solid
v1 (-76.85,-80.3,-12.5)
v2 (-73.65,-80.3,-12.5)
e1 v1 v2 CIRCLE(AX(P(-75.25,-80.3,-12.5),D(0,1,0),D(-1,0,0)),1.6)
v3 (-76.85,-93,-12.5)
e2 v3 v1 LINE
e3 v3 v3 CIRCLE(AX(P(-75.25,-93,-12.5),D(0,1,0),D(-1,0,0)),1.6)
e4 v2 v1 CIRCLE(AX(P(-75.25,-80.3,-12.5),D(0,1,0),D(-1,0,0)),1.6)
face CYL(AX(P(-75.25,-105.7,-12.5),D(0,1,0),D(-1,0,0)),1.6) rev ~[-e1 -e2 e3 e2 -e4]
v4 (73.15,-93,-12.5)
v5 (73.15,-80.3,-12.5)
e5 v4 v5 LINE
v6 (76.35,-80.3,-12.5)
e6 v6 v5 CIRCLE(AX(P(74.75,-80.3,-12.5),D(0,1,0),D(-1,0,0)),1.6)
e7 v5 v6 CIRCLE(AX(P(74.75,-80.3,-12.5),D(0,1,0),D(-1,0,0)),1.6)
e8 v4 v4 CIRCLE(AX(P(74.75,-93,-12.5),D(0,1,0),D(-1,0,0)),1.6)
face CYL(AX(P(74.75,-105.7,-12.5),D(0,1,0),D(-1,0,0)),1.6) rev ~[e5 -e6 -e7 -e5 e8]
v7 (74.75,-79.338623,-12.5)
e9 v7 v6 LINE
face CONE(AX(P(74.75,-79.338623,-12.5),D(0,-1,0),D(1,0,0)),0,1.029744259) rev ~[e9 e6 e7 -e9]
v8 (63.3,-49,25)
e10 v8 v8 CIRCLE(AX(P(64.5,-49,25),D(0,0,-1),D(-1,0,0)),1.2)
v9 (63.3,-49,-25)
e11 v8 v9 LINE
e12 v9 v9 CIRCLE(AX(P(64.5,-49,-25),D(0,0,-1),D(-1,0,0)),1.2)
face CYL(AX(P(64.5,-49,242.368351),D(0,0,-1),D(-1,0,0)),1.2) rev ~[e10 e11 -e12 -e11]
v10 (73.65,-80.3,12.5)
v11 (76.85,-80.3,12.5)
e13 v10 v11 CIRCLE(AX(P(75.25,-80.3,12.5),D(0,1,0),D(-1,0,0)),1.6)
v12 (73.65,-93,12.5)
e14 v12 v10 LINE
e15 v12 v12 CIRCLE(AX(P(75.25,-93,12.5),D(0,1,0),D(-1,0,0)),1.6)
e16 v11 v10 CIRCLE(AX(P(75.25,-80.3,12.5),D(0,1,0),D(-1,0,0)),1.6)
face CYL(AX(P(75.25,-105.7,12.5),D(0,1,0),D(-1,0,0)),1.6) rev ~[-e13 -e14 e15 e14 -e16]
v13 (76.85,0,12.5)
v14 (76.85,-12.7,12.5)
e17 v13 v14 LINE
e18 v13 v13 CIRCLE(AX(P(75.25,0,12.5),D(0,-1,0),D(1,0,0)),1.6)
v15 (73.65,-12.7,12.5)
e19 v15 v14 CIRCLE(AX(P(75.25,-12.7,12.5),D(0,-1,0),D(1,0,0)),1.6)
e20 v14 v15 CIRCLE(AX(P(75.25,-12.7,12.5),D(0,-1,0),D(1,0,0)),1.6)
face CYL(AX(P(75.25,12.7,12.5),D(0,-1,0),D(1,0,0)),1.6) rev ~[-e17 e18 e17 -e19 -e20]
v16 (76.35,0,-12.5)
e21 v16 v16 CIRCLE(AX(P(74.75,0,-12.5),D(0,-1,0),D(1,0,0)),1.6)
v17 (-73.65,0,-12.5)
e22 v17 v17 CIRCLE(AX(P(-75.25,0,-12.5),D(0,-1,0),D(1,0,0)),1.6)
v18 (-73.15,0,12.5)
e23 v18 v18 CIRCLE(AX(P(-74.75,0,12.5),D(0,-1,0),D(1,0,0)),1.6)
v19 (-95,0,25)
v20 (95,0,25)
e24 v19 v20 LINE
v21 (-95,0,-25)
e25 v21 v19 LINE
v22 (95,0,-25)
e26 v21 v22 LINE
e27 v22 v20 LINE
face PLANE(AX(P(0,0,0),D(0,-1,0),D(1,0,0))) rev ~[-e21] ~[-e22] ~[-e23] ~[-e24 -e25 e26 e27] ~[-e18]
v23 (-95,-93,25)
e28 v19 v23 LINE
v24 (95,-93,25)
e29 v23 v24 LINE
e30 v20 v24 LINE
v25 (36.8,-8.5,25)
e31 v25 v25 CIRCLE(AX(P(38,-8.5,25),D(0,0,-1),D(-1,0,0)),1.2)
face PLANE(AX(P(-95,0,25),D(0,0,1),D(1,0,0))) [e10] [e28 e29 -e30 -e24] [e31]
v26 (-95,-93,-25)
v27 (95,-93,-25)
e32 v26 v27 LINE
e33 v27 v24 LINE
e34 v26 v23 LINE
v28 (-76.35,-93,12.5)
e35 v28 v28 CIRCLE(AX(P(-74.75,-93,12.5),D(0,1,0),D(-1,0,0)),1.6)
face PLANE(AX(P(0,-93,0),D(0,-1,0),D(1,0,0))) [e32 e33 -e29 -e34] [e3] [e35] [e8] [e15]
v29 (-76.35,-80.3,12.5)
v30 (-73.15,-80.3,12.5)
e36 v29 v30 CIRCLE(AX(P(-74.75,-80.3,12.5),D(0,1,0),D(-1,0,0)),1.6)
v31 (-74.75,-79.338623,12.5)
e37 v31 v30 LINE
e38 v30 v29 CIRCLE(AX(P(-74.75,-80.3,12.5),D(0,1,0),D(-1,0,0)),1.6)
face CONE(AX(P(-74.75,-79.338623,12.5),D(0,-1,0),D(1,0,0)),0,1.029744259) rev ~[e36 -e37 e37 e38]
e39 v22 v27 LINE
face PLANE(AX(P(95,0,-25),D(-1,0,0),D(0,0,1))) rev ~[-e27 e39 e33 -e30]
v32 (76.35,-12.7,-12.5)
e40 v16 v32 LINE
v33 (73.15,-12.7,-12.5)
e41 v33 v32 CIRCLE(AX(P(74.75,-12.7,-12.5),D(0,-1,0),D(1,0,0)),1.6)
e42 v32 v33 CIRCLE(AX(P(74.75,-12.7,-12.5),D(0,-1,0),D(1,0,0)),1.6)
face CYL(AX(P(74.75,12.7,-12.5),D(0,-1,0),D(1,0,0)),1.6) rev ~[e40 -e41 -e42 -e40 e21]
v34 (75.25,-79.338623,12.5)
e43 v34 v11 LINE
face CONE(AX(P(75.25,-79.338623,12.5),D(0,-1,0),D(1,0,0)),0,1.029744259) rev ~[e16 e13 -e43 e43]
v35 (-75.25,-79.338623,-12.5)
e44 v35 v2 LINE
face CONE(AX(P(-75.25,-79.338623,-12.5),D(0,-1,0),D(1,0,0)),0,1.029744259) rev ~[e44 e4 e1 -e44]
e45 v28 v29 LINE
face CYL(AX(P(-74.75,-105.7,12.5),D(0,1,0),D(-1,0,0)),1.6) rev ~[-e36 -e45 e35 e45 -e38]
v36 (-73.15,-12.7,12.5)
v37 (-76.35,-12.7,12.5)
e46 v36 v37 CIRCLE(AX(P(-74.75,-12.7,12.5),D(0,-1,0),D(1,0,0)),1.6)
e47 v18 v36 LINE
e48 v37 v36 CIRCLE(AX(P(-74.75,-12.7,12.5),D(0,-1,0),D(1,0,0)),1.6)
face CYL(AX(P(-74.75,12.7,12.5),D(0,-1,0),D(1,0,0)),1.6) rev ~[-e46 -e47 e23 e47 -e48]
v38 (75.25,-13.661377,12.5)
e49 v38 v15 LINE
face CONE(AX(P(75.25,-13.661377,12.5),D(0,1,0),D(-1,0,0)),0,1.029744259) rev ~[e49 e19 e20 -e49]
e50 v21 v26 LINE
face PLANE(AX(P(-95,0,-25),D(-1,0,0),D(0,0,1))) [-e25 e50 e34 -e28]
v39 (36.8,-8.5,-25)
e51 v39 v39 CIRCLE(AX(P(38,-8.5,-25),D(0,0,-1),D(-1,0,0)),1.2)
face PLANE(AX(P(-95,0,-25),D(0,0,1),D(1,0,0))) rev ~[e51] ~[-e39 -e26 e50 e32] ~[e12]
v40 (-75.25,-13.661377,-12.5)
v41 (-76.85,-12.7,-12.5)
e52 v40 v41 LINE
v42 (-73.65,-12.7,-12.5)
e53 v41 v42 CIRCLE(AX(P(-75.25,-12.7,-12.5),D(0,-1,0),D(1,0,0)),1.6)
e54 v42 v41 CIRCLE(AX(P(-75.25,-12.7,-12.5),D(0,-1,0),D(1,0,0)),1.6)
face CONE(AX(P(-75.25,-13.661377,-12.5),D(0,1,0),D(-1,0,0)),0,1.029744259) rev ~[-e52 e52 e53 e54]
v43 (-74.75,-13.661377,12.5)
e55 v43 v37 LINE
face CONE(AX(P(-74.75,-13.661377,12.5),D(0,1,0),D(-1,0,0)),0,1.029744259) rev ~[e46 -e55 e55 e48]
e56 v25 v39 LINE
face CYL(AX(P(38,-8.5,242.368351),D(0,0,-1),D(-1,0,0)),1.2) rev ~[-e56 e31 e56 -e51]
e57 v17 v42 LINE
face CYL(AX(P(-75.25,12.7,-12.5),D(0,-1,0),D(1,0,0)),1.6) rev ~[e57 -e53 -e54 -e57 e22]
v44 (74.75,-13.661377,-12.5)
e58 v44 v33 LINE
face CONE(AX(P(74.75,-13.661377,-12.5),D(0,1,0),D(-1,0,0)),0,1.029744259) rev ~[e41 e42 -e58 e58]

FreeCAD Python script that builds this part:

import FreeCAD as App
import Part
import Sketcher


def add_polygon(sketch, points):
    """Adds a closed chain of lines whose ends are joined by coincident constraints."""
    first, n = sketch.GeometryCount, len(points)
    for a, b in zip(points, points[1:] + points[:1]):
        sketch.addGeometry(Part.LineSegment(App.Vector(*a, 0), App.Vector(*b, 0)), False)
    for i in range(n):
        sketch.addConstraint(Sketcher.Constraint("Coincident", first + i, 2, first + (i + 1) % n, 1))

doc = App.newDocument("Part")
body = doc.addObject("PartDesign::Body", "Body")

# Sketch on XZ plane
sketch1 = body.newObject("Sketcher::SketchObject", "Sketch")
sketch1.AttachmentSupport = (doc.getObject("XZ_Plane"), [""])
sketch1.MapMode = "FlatFace"
add_polygon(sketch1, [(-95, 25), (-95, -25), (95, -25), (95, 25)])  # lines 0-3
sketch1.addConstraint(Sketcher.Constraint("Vertical", 0))
sketch1.addConstraint(Sketcher.Constraint("Horizontal", 1))
sketch1.addConstraint(Sketcher.Constraint("Vertical", 2))
sketch1.addConstraint(Sketcher.Constraint("Horizontal", 3))
sketch1.addConstraint(Sketcher.Constraint("Symmetric", 0, 2, 2, 2, -1, 1))
sketch1.addConstraint(Sketcher.Constraint("DistanceX", 1, 1, 1, 2, 190.0))
sketch1.addConstraint(Sketcher.Constraint("DistanceY", 0, 2, 0, 1, 50.0))
pad1 = body.newObject("PartDesign::Pad", "Pad")
pad1.Profile = sketch1
pad1.Length = 93

# Sketch on XZ plane
sketch2 = body.newObject("Sketcher::SketchObject", "Sketch001")
sketch2.AttachmentSupport = (doc.getObject("XZ_Plane"), [""])
sketch2.MapMode = "FlatFace"
sketch2.AttachmentOffset = App.Placement(App.Vector(0, 0, 93), App.Rotation())
sketch2.addGeometry(Part.Circle(App.Vector(-74.75, 12.5, 0), App.Vector(0, 0, 1), 1.6), False)
sketch2.addGeometry(Part.Circle(App.Vector(75.25, 12.5, 0), App.Vector(0, 0, 1), 1.6), False)
sketch2.addGeometry(Part.Circle(App.Vector(74.75, -12.5, 0), App.Vector(0, 0, 1), 1.6), False)
sketch2.addGeometry(Part.Circle(App.Vector(-75.25, -12.5, 0), App.Vector(0, 0, 1), 1.6), False)
sketch2.addConstraint(Sketcher.Constraint("Equal", 0, 1))
sketch2.addConstraint(Sketcher.Constraint("Equal", 1, 2))
sketch2.addConstraint(Sketcher.Constraint("Equal", 2, 3))
sketch2.addConstraint(Sketcher.Constraint("Symmetric", 0, 3, 2, 3, -1, 1))
sketch2.addConstraint(Sketcher.Constraint("Symmetric", 1, 3, 3, 3, -1, 1))
sketch2.addConstraint(Sketcher.Constraint("Horizontal", 0, 3, 1, 3))
sketch2.addConstraint(Sketcher.Constraint("Diameter", 0, 3.2))
sketch2.addConstraint(Sketcher.Constraint("DistanceX", 0, 3, 1, 3, 150.0))
sketch2.addConstraint(Sketcher.Constraint("DistanceY", 2, 3, 1, 3, 25.0))
sketch2.addConstraint(Sketcher.Constraint("DistanceX", 2, 3, 1, 3, 0.5))
doc.recompute()
hole = body.newObject("PartDesign::Hole", "Hole")
hole.Profile = sketch2
hole.ThreadType = "None"
hole.Diameter = 3.2
hole.DepthType = "Dimension"
hole.Depth = 12.7
hole.DrillPoint = "Angled"
hole.DrillPointAngle = 118

# Sketch on XZ plane
sketch3 = body.newObject("Sketcher::SketchObject", "Sketch002")
sketch3.AttachmentSupport = (doc.getObject("XZ_Plane"), [""])
sketch3.MapMode = "FlatFace"
sketch3.addGeometry(Part.Circle(App.Vector(75.25, 12.5, 0), App.Vector(0, 0, 1), 1.6), False)
sketch3.addGeometry(Part.Circle(App.Vector(-74.75, 12.5, 0), App.Vector(0, 0, 1), 1.6), False)
sketch3.addGeometry(Part.Circle(App.Vector(-75.25, -12.5, 0), App.Vector(0, 0, 1), 1.6), False)
sketch3.addGeometry(Part.Circle(App.Vector(74.75, -12.5, 0), App.Vector(0, 0, 1), 1.6), False)
sketch3.addConstraint(Sketcher.Constraint("Equal", 0, 1))
sketch3.addConstraint(Sketcher.Constraint("Equal", 1, 2))
sketch3.addConstraint(Sketcher.Constraint("Equal", 2, 3))
sketch3.addConstraint(Sketcher.Constraint("Symmetric", 0, 3, 2, 3, -1, 1))
sketch3.addConstraint(Sketcher.Constraint("Symmetric", 1, 3, 3, 3, -1, 1))
sketch3.addConstraint(Sketcher.Constraint("Horizontal", 0, 3, 1, 3))
sketch3.addConstraint(Sketcher.Constraint("Diameter", 0, 3.2))
sketch3.addConstraint(Sketcher.Constraint("DistanceX", 1, 3, 0, 3, 150.0))
sketch3.addConstraint(Sketcher.Constraint("DistanceY", 2, 3, 1, 3, 25.0))
sketch3.addConstraint(Sketcher.Constraint("DistanceX", 2, 3, 1, 3, 0.5))
doc.recompute()
hole2 = body.newObject("PartDesign::Hole", "Hole001")
hole2.Profile = sketch3
hole2.ThreadType = "None"
hole2.Diameter = 3.2
hole2.DepthType = "Dimension"
hole2.Depth = 12.7
hole2.DrillPoint = "Angled"
hole2.DrillPointAngle = 118
hole2.Reversed = True

# Sketch on XY plane
sketch4 = body.newObject("Sketcher::SketchObject", "Sketch003")
sketch4.AttachmentSupport = (doc.getObject("XY_Plane"), [""])
sketch4.MapMode = "FlatFace"
sketch4.AttachmentOffset = App.Placement(App.Vector(0, 0, 25), App.Rotation())
sketch4.addGeometry(Part.Circle(App.Vector(38, -8.5, 0), App.Vector(0, 0, 1), 1.2), False)
sketch4.addGeometry(Part.Circle(App.Vector(64.5, -49, 0), App.Vector(0, 0, 1), 1.2), False)
sketch4.addConstraint(Sketcher.Constraint("Equal", 0, 1))
sketch4.addConstraint(Sketcher.Constraint("Diameter", 0, 2.4))
sketch4.addConstraint(Sketcher.Constraint("DistanceX", -1, 1, 0, 3, 38.0))
sketch4.addConstraint(Sketcher.Constraint("DistanceY", 1, 3, -1, 1, 49.0))
sketch4.addConstraint(Sketcher.Constraint("DistanceY", 0, 3, -1, 1, 8.5))
sketch4.addConstraint(Sketcher.Constraint("DistanceX", -1, 1, 1, 3, 64.5))
doc.recompute()
hole3 = body.newObject("PartDesign::Hole", "Hole002")
hole3.Profile = sketch4
hole3.ThreadType = "None"
hole3.Diameter = 2.4
hole3.DepthType = "ThroughAll"

doc.recompute()
